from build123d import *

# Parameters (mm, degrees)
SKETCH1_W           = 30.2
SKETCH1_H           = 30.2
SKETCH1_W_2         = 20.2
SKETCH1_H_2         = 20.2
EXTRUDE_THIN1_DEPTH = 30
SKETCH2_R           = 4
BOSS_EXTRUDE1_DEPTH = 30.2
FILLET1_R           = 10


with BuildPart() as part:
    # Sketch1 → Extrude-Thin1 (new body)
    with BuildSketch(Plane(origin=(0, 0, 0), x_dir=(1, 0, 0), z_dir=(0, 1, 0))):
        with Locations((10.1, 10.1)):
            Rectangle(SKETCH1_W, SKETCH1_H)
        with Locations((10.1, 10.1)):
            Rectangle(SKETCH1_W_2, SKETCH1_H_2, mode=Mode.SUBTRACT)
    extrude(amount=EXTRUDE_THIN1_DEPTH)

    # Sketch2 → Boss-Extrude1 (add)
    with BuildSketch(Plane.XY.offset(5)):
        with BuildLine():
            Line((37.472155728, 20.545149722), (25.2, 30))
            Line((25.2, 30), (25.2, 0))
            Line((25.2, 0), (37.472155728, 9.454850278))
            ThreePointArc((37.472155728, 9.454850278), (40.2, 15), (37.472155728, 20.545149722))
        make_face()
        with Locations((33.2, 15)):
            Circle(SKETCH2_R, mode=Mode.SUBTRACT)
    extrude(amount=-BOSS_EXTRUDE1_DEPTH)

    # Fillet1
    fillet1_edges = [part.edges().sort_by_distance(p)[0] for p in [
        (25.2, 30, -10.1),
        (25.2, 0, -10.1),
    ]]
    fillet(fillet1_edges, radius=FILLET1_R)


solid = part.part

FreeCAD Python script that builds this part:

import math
import FreeCAD as App
import Part
import Sketcher
from FreeCAD import Vector
Q = App.Units.Quantity


def edges_at(feature, points):
    """Names of the edges that pass closest to the given points."""
    edges = feature.Shape.Edges
    near = lambda p: min(range(len(edges)), key=lambda i: edges[i].distToShape(Part.Vertex(*p))[0])
    return sorted({f"Edge{near(p) + 1}" for p in points})


def add_polygon(sketch, points):
    """Adds a closed chain of lines whose ends are joined by coincident constraints."""
    first, n = sketch.GeometryCount, len(points)
    for a, b in zip(points, points[1:] + points[:1]):
        sketch.addGeometry(Part.LineSegment(App.Vector(*a, 0), App.Vector(*b, 0)), False)
    for i in range(n):
        sketch.addConstraint(Sketcher.Constraint("Coincident", first + i, 2, first + (i + 1) % n, 1))

doc = App.newDocument("Part")
body = doc.addObject("PartDesign::Body", "Body")

# Sketch on XZ plane
sketch1 = doc.addObject("Sketcher::SketchObject", "Sketch")
body.addObject(sketch1)
sketch1.AttachmentSupport = (doc.XZ_Plane, [""])
sketch1.MapMode = "FlatFace"
add_polygon(sketch1, [(-5, -25.2), (-5, 5), (25.2, 5), (25.2, -25.2)])  # lines 0-3
add_polygon(sketch1, [(20.2, 0), (0, 0), (0, -20.2), (20.2, -20.2)])  # lines 4-7
sketch1.addConstraint(Sketcher.Constraint("Vertical", 0))
sketch1.addConstraint(Sketcher.Constraint("Horizontal", 1))
sketch1.addConstraint(Sketcher.Constraint("Vertical", 2))
sketch1.addConstraint(Sketcher.Constraint("Horizontal", 3))
sketch1.addConstraint(Sketcher.Constraint("Horizontal", 4))
sketch1.addConstraint(Sketcher.Constraint("Vertical", 5))
sketch1.addConstraint(Sketcher.Constraint("Horizontal", 6))
sketch1.addConstraint(Sketcher.Constraint("Vertical", 7))
sketch1.addConstraint(Sketcher.Constraint("Coincident", 4, 2, -1, 1))
sketch1.addConstraint(Sketcher.Constraint("Equal", 3, 0))
sketch1.addConstraint(Sketcher.Constraint("Equal", 6, 5))
sketch1.addConstraint(Sketcher.Constraint("DistanceX", 1, 1, 1, 2, Q("30.2 mm")))
sketch1.addConstraint(Sketcher.Constraint("DistanceX", 4, 2, 4, 1, Q("20.2 mm")))
sketch1.addConstraint(Sketcher.Constraint("DistanceX", 0, 2, -1, 1, Q("5 mm")))
sketch1.addConstraint(Sketcher.Constraint("DistanceY", -1, 1, 0, 2, Q("5 mm")))
pad1 = doc.addObject("PartDesign::Pad", "Pad")
body.addObject(pad1)
pad1.Profile = sketch1
pad1.Length = 30
pad1.Reversed = True

# Sketch on XY plane
sketch2 = doc.addObject("Sketcher::SketchObject", "Sketch001")
body.addObject(sketch2)
sketch2.AttachmentSupport = (doc.XY_Plane, [""])
sketch2.MapMode = "FlatFace"
sketch2.AttachmentOffset = App.Placement(Vector(0, 0, 5), App.Rotation())
sketch2.addGeometry(Part.LineSegment(Vector(37.472156, 20.54515, 0), Vector(25.2, 30, 0)), False)
sketch2.addGeometry(Part.LineSegment(Vector(25.2, 30, 0), Vector(25.2, 0, 0)), False)
sketch2.addGeometry(Part.LineSegment(Vector(25.2, 0, 0), Vector(37.472156, 9.45485, 0)), False)
sketch2.addGeometry(Part.ArcOfCircle(Part.Circle(Vector(33.2, 15, 0), Vector(0, 0, 1), 7), math.radians(-52.388226), math.radians(52.388226)), False)
sketch2.addGeometry(Part.Circle(Vector(33.2, 15, 0), Vector(0, 0, 1), 4), False)
sketch2.addConstraint(Sketcher.Constraint("Coincident", 0, 2, 1, 1))
sketch2.addConstraint(Sketcher.Constraint("Coincident", 1, 2, 2, 1))
sketch2.addConstraint(Sketcher.Constraint("Tangent", 2, 2, 3, 1))
sketch2.addConstraint(Sketcher.Constraint("Tangent", 3, 2, 0, 1))
sketch2.addConstraint(Sketcher.Constraint("Vertical", 1))
sketch2.addConstraint(Sketcher.Constraint("Coincident", 4, 3, 3, 3))
sketch2.addConstraint(Sketcher.Constraint("PointOnObject", 1, 2, -1))
sketch2.addConstraint(Sketcher.Constraint("Vertical", 2, 2, 3, 2))
sketch2.addConstraint(Sketcher.Constraint("Diameter", 4, Q("8 mm")))
sketch2.addConstraint(Sketcher.Constraint("Radius", 3, Q("7 mm")))
sketch2.addConstraint(Sketcher.Constraint("DistanceY", 1, 2, 1, 1, Q("30 mm")))
sketch2.addConstraint(Sketcher.Constraint("DistanceX", 0, 2, 3, 3, Q("8 mm")))
sketch2.addConstraint(Sketcher.Constraint("DistanceX", -1, 1, 3, 3, Q("33.2 mm")))
pad2 = doc.addObject("PartDesign::Pad", "Pad001")
body.addObject(pad2)
pad2.Profile = sketch2
pad2.Length = 30.2
pad2.Reversed = True
doc.recompute()

fillet = doc.addObject("PartDesign::Fillet", "Fillet")
body.addObject(fillet)
fillet.Base = (pad2, edges_at(pad2, [(25.2, 30, -10.1), (25.2, 0, -10.1)]))
fillet.Radius = 10

doc.recompute()
